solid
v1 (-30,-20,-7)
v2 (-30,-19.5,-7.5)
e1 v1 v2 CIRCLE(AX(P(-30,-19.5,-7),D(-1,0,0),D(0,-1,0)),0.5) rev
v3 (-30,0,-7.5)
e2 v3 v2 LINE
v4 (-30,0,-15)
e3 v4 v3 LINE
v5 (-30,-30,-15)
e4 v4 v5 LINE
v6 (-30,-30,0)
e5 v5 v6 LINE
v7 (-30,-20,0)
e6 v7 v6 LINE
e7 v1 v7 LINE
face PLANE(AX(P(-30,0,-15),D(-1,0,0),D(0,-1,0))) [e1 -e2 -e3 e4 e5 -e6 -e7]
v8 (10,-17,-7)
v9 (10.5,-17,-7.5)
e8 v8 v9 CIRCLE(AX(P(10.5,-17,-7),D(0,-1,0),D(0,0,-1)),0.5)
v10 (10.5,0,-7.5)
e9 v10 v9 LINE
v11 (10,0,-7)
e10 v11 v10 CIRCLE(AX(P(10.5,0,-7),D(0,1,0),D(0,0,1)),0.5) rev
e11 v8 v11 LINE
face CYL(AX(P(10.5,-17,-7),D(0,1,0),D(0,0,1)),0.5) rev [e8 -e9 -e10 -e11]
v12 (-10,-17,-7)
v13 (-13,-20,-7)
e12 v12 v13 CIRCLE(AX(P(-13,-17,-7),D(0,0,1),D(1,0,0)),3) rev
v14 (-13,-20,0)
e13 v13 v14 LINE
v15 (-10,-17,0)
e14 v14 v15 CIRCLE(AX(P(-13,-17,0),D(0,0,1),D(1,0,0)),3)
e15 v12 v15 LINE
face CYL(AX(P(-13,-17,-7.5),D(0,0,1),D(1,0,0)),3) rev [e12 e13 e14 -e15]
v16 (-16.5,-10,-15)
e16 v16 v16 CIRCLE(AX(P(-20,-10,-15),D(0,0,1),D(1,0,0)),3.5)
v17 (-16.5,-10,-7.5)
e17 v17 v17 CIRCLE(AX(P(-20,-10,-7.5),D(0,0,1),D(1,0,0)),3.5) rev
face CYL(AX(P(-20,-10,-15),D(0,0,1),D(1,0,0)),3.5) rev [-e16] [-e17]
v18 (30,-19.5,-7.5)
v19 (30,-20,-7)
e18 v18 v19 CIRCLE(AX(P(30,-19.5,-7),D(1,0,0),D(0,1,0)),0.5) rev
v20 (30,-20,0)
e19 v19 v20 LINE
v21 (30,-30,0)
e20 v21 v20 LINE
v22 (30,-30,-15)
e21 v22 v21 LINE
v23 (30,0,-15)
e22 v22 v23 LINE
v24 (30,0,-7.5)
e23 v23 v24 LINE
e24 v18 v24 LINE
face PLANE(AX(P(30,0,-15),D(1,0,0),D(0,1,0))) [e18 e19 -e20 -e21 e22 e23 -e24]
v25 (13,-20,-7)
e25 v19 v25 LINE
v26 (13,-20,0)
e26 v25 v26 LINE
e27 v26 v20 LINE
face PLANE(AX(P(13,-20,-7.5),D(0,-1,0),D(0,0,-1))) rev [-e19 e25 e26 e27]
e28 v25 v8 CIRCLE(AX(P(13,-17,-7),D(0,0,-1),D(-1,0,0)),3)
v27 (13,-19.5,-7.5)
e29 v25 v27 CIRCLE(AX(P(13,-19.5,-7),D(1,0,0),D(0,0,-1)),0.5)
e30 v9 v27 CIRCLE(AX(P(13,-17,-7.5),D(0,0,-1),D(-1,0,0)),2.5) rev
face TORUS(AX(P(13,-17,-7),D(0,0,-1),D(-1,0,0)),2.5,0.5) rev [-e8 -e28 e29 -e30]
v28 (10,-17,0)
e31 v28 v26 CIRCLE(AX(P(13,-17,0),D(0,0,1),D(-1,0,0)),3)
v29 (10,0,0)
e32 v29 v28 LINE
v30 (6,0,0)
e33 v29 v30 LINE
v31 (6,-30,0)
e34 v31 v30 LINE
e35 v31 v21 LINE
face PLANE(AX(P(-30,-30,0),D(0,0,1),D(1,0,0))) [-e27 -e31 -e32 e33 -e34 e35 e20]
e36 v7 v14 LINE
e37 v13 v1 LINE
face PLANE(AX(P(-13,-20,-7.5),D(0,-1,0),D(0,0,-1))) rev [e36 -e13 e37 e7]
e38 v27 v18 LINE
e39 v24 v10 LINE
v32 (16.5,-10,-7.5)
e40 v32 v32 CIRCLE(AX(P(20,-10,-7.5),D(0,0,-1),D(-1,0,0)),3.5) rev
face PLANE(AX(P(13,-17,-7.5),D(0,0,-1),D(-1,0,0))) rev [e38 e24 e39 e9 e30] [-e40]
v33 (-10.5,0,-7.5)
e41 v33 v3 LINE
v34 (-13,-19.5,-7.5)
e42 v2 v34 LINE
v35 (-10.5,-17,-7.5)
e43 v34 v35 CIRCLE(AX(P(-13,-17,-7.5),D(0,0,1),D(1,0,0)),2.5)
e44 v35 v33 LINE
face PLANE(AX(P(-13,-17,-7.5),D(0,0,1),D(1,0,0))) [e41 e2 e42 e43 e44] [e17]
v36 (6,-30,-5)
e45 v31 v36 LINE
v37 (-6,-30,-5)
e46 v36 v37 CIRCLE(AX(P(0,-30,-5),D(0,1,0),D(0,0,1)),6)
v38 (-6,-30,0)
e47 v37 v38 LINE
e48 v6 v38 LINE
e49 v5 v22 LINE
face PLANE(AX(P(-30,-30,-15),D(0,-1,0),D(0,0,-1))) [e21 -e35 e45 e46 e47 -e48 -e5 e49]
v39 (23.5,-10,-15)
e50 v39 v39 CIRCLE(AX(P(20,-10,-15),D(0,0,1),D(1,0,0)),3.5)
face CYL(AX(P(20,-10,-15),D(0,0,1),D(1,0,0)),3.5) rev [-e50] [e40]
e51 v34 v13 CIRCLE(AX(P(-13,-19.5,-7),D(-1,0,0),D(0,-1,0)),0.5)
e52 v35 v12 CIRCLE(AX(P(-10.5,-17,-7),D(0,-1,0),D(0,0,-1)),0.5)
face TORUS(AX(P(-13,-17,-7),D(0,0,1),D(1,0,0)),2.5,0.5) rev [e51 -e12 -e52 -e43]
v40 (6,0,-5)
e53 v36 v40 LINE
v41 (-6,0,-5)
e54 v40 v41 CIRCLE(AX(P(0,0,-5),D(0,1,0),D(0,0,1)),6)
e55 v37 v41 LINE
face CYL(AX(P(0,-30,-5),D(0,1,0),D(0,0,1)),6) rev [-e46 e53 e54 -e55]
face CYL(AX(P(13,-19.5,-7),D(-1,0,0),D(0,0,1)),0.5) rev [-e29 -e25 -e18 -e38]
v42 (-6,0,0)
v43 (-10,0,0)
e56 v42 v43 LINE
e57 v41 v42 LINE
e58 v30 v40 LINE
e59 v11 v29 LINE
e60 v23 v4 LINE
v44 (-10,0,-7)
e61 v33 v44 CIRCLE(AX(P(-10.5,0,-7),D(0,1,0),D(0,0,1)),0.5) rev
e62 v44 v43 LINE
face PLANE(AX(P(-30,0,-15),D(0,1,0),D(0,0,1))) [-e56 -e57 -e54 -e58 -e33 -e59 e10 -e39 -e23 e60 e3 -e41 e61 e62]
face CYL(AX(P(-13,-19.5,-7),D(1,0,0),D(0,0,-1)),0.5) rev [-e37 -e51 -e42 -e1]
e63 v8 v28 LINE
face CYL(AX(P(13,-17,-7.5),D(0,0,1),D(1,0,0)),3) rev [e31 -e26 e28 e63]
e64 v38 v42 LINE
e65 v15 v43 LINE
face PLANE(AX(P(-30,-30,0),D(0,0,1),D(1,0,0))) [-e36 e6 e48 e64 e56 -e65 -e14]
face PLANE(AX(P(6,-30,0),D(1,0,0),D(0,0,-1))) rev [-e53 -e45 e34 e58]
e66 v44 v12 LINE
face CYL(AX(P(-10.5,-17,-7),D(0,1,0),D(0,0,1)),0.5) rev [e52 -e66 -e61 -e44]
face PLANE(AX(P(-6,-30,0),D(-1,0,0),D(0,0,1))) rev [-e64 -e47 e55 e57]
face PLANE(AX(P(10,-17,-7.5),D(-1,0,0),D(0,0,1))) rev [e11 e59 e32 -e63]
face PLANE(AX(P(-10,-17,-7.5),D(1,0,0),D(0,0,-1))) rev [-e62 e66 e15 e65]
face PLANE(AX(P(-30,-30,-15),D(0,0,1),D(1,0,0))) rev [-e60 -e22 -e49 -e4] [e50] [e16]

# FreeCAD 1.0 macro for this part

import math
import FreeCAD as App
import Part
import Sketcher
from FreeCAD import Vector
Q = App.Units.Quantity


def edges_at(feature, points):
    """Names of the edges that pass closest to the given points."""
    edges = feature.Shape.Edges
    near = lambda p: min(range(len(edges)), key=lambda i: edges[i].distToShape(Part.Vertex(*p))[0])
    return sorted({f"Edge{near(p) + 1}" for p in points})


def add_polygon(sketch, points):
    """Adds a closed chain of lines whose ends are joined by coincident constraints."""
    first, n = sketch.GeometryCount, len(points)
    for a, b in zip(points, points[1:] + points[:1]):
        sketch.addGeometry(Part.LineSegment(App.Vector(*a, 0), App.Vector(*b, 0)), False)
    for i in range(n):
        sketch.addConstraint(Sketcher.Constraint("Coincident", first + i, 2, first + (i + 1) % n, 1))

doc = App.newDocument("Part")
body = doc.addObject("PartDesign::Body", "Body")

sketch1 = body.newObject("Sketcher::SketchObject", "Sketch")
sketch1.AttachmentSupport = (doc.getObject("XY_Plane"), [""])
sketch1.MapMode = "FlatFace"
add_polygon(sketch1, [(-30, 0), (-30, -30), (30, -30), (30, 0)])
sketch1.addGeometry(Part.Circle(Vector(-20, -10, 0), Vector(0, 0, 1), 3.5), False)
sketch1.addGeometry(Part.Circle(Vector(20, -10, 0), Vector(0, 0, 1), 3.5), False)
sketch1.addConstraint(Sketcher.Constraint("Vertical", 0))
sketch1.addConstraint(Sketcher.Constraint("Horizontal", 1))
sketch1.addConstraint(Sketcher.Constraint("Vertical", 2))
sketch1.addConstraint(Sketcher.Constraint("Horizontal", 3))
sketch1.addConstraint(Sketcher.Constraint("Equal", 4, 5))
sketch1.addConstraint(Sketcher.Constraint("Symmetric", 2, 2, 3, 2, -1, 1))
sketch1.addConstraint(Sketcher.Constraint("Symmetric", 4, 3, 5, 3, -2))
sketch1.addConstraint(Sketcher.Constraint("Diameter", 4, Q("7 mm")))
sketch1.addConstraint(Sketcher.Constraint("DistanceX", 1, 1, 1, 2, Q("60 mm")))
sketch1.addConstraint(Sketcher.Constraint("DistanceY", 0, 2, 0, 1, Q("30 mm")))
sketch1.addConstraint(Sketcher.Constraint("DistanceX", 4, 3, -1, 1, Q("20 mm")))
sketch1.addConstraint(Sketcher.Constraint("DistanceY", 4, 3, -1, 1, Q("10 mm")))
pad1 = body.newObject("PartDesign::Pad", "Pad")
pad1.Profile = sketch1
pad1.Length = 15
pad1.Reversed = True

sketch2 = body.newObject("Sketcher::SketchObject", "Sketch001")
sketch2.AttachmentSupport = (doc.getObject("XY_Plane"), [""])
sketch2.MapMode = "FlatFace"
sketch2.addGeometry(Part.LineSegment(Vector(13, -20, 0), Vector(30, -20, 0)), False)
sketch2.addGeometry(Part.LineSegment(Vector(30, -20, 0), Vector(30, 0, 0)), False)
sketch2.addGeometry(Part.LineSegment(Vector(30, 0, 0), Vector(10, 0, 0)), False)
sketch2.addGeometry(Part.LineSegment(Vector(10, 0, 0), Vector(10, -17, 0)), False)
sketch2.addGeometry(Part.ArcOfCircle(Part.Circle(Vector(13, -17, 0), Vector(0, 0, 1), 3), math.radians(180), math.radians(270)), False)
sketch2.addGeometry(Part.LineSegment(Vector(-30, 0, 0), Vector(-30, -20, 0)), False)
sketch2.addGeometry(Part.LineSegment(Vector(-30, -20, 0), Vector(-13, -20, 0)), False)
sketch2.addGeometry(Part.ArcOfCircle(Part.Circle(Vector(-13, -17, 0), Vector(0, 0, 1), 3), math.radians(-90), math.radians(0)), False)
sketch2.addGeometry(Part.LineSegment(Vector(-10, -17, 0), Vector(-10, 0, 0)), False)
sketch2.addGeometry(Part.LineSegment(Vector(-10, 0, 0), Vector(-30, 0, 0)), False)
sketch2.addConstraint(Sketcher.Constraint("Coincident", 0, 2, 1, 1))
sketch2.addConstraint(Sketcher.Constraint("Coincident", 1, 2, 2, 1))
sketch2.addConstraint(Sketcher.Constraint("Coincident", 2, 2, 3, 1))
sketch2.addConstraint(Sketcher.Constraint("Tangent", 3, 2, 4, 1))
sketch2.addConstraint(Sketcher.Constraint("Tangent", 4, 2, 0, 1))
sketch2.addConstraint(Sketcher.Constraint("Coincident", 5, 2, 6, 1))
sketch2.addConstraint(Sketcher.Constraint("Tangent", 6, 2, 7, 1))
sketch2.addConstraint(Sketcher.Constraint("Tangent", 7, 2, 8, 1))
sketch2.addConstraint(Sketcher.Constraint("Coincident", 8, 2, 9, 1))
sketch2.addConstraint(Sketcher.Constraint("Coincident", 9, 2, 5, 1))
sketch2.addConstraint(Sketcher.Constraint("Horizontal", 0))
sketch2.addConstraint(Sketcher.Constraint("Vertical", 1))
sketch2.addConstraint(Sketcher.Constraint("Horizontal", 2))
sketch2.addConstraint(Sketcher.Constraint("Vertical", 3))
sketch2.addConstraint(Sketcher.Constraint("Vertical", 5))
sketch2.addConstraint(Sketcher.Constraint("Horizontal", 6))
sketch2.addConstraint(Sketcher.Constraint("Vertical", 8))
sketch2.addConstraint(Sketcher.Constraint("Horizontal", 9))
sketch2.addConstraint(Sketcher.Constraint("Equal", 4, 7))
sketch2.addConstraint(Sketcher.Constraint("Symmetric", 2, 2, 8, 2, -1, 1))
sketch2.addConstraint(Sketcher.Constraint("Symmetric", 0, 2, 5, 2, -2))
sketch2.addConstraint(Sketcher.Constraint("PointOnObject", 1, 2, -1))
sketch2.addConstraint(Sketcher.Constraint("Equal", 9, 1))
sketch2.addConstraint(Sketcher.Constraint("Radius", 4, Q("3 mm")))
sketch2.addConstraint(Sketcher.Constraint("DistanceX", 0, 1, 0, 2, Q("17 mm")))
sketch2.addConstraint(Sketcher.Constraint("DistanceX", -1, 1, 4, 3, Q("13 mm")))
pocket1 = body.newObject("PartDesign::Pocket", "Pocket")
pocket1.Profile = sketch2
pocket1.Length = 7.5

sketch3 = body.newObject("Sketcher::SketchObject", "Sketch002")
sketch3.AttachmentSupport = (doc.getObject("XZ_Plane"), [""])
sketch3.MapMode = "FlatFace"
sketch3.addGeometry(Part.LineSegment(Vector(6, 0, 0), Vector(6, -5, 0)), False)
sketch3.addGeometry(Part.ArcOfCircle(Part.Circle(Vector(0, -5, 0), Vector(0, 0, 1), 6), math.radians(180), math.radians(360)), False)
sketch3.addGeometry(Part.LineSegment(Vector(-6, -5, 0), Vector(-6, 0, 0)), False)
sketch3.addGeometry(Part.LineSegment(Vector(-6, 0, 0), Vector(6, 0, 0)), False)
sketch3.addConstraint(Sketcher.Constraint("Tangent", 0, 2, 1, 2))
sketch3.addConstraint(Sketcher.Constraint("Tangent", 1, 1, 2, 1))
sketch3.addConstraint(Sketcher.Constraint("Coincident", 2, 2, 3, 1))
sketch3.addConstraint(Sketcher.Constraint("Coincident", 3, 2, 0, 1))
sketch3.addConstraint(Sketcher.Constraint("Vertical", 0))
sketch3.addConstraint(Sketcher.Constraint("Vertical", 2))
sketch3.addConstraint(Sketcher.Constraint("Horizontal", 3))
sketch3.addConstraint(Sketcher.Constraint("Symmetric", 2, 2, 3, 2, -1, 1))
sketch3.addConstraint(Sketcher.Constraint("Radius", 1, Q("6 mm")))
sketch3.addConstraint(Sketcher.Constraint("DistanceY", 0, 2, 0, 1, Q("5 mm")))
pocket2 = body.newObject("PartDesign::Pocket", "Pocket001")
pocket2.Profile = sketch3
pocket2.Type = "ThroughAll"
pocket2.Reversed = True
doc.recompute()

fillet = body.newObject("PartDesign::Fillet", "Fillet")
fillet.Base = (pocket2, edges_at(pocket2, [
    (21.5, -20, -7.5),
    (10.879, -19.121, -7.5),
    (10, -8.5, -7.5),
    (-10.879, -19.121, -7.5),
    (-21.5, -20, -7.5),
    (-10, -8.5, -7.5),
]))
fillet.Radius = 0.5

doc.recompute()
